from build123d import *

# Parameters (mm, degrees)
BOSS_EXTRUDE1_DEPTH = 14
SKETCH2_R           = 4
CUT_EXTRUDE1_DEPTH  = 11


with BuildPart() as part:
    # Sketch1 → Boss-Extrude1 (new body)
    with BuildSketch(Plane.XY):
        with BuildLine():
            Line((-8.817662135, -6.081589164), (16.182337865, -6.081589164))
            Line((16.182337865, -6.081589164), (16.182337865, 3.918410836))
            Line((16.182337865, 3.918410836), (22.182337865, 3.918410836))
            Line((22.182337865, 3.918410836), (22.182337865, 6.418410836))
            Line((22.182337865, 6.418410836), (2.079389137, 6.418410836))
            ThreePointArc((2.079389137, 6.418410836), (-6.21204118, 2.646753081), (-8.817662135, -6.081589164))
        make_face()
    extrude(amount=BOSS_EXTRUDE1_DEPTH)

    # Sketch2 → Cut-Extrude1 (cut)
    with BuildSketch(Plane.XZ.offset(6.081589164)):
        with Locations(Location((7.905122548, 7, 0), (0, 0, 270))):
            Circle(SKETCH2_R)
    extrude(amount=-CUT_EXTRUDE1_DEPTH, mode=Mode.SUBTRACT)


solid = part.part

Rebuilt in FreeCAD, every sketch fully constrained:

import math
import FreeCAD as App
import Part
import Sketcher
from FreeCAD import Vector

doc = App.newDocument("Part")
params = doc.addObject("Spreadsheet::Sheet", "Params")
for row, (alias, value) in enumerate([
    ("sketch1_radius", "11 mm"),
    ("sketch1_width", "25 mm"),
    ("sketch1_width2", "6 mm"),
    ("sketch1_height", "10 mm"),
    ("sketch1_height2", "2.5 mm"),
    ("pad1_length", "14 mm"),
    ("sketch2_diameter", "8 mm"),
    ("pocket1_length", "11 mm"),
], start=1):
    params.set(f"A{row}", alias)
    params.set(f"B{row}", "=" + value)
    params.setAlias(f"B{row}", alias)

body = doc.addObject("PartDesign::Body", "Body")

# Sketch on XY plane
sketch1 = body.newObject("Sketcher::SketchObject", "Sketch")
sketch1.AttachmentSupport = (doc.getObject("XY_Plane"), [""])
sketch1.MapMode = "FlatFace"
sketch1.addGeometry([
    Part.LineSegment(Vector(-8.8, -6.1, 0), Vector(16.2, -6.1, 0)),  # 0
    Part.LineSegment(Vector(16.2, -6.1, 0), Vector(16.2, 3.9, 0)),  # 1
    Part.LineSegment(Vector(16.2, 3.9, 0), Vector(22.2, 3.9, 0)),  # 2
    Part.LineSegment(Vector(22.2, 3.9, 0), Vector(22.2, 6.4, 0)),  # 3
    Part.LineSegment(Vector(22.2, 6.4, 0), Vector(2.1, 6.4, 0)),  # 4
    Part.ArcOfCircle(Part.Circle(Vector(2.1, -4.6, 0), Vector(0, 0, 1), 11), math.radians(90), math.radians(188)),  # 5
], False)
sketch1.addConstraint([
    Sketcher.Constraint("Coincident", 0, 2, 1, 1),
    Sketcher.Constraint("Coincident", 1, 2, 2, 1),
    Sketcher.Constraint("Coincident", 2, 2, 3, 1),
    Sketcher.Constraint("Coincident", 3, 2, 4, 1),
    Sketcher.Constraint("Coincident", 4, 2, 5, 1),
    Sketcher.Constraint("Coincident", 5, 2, 0, 1),
    Sketcher.Constraint("Horizontal", 0),
    Sketcher.Constraint("Vertical", 1),
    Sketcher.Constraint("Horizontal", 2),
    Sketcher.Constraint("Vertical", 3),
    Sketcher.Constraint("Horizontal", 4),
    Sketcher.Constraint("Radius", 5, 11.0),
    Sketcher.Constraint("DistanceX", 0, 1, 0, 2, 25.0),
    Sketcher.Constraint("DistanceX", 2, 1, 2, 2, 6.0),
    Sketcher.Constraint("DistanceY", 1, 1, 1, 2, 10.0),
    Sketcher.Constraint("DistanceY", 3, 1, 3, 2, 2.5),
    Sketcher.Constraint("DistanceX", 4, 2, 4, 1, 20.102949),
    Sketcher.Constraint("DistanceY", 5, 3, -1, 1, 4.581589),
    Sketcher.Constraint("DistanceX", -1, 1, 4, 2, 2.079389),
])
sketch1.setExpression("Constraints[11]", "Params.sketch1_radius")
sketch1.setExpression("Constraints[12]", "Params.sketch1_width")
sketch1.setExpression("Constraints[13]", "Params.sketch1_width2")
sketch1.setExpression("Constraints[14]", "Params.sketch1_height")
sketch1.setExpression("Constraints[15]", "Params.sketch1_height2")
pad1 = body.newObject("PartDesign::Pad", "Pad")
pad1.Profile = sketch1
pad1.setExpression("Length", "Params.pad1_length")

# Sketch on XZ plane
sketch2 = body.newObject("Sketcher::SketchObject", "Sketch001")
sketch2.AttachmentSupport = (doc.getObject("XZ_Plane"), [""])
sketch2.MapMode = "FlatFace"
sketch2.AttachmentOffset = App.Placement(Vector(0, 0, 6.081589), App.Rotation())
sketch2.addGeometry(Part.Circle(Vector(7.9, 7, 0), Vector(0, 0, 1), 4), False)
sketch2.addConstraint([
    Sketcher.Constraint("Diameter", 0, 8.0),
    Sketcher.Constraint("DistanceY", -1, 1, 0, 3, 7.0),
    Sketcher.Constraint("DistanceX", -1, 1, 0, 3, 7.905123),
])
sketch2.setExpression("Constraints[0]", "Params.sketch2_diameter")
pocket1 = body.newObject("PartDesign::Pocket", "Pocket")
pocket1.Profile = sketch2
pocket1.setExpression("Length", "Params.pocket1_length")

doc.recompute()
